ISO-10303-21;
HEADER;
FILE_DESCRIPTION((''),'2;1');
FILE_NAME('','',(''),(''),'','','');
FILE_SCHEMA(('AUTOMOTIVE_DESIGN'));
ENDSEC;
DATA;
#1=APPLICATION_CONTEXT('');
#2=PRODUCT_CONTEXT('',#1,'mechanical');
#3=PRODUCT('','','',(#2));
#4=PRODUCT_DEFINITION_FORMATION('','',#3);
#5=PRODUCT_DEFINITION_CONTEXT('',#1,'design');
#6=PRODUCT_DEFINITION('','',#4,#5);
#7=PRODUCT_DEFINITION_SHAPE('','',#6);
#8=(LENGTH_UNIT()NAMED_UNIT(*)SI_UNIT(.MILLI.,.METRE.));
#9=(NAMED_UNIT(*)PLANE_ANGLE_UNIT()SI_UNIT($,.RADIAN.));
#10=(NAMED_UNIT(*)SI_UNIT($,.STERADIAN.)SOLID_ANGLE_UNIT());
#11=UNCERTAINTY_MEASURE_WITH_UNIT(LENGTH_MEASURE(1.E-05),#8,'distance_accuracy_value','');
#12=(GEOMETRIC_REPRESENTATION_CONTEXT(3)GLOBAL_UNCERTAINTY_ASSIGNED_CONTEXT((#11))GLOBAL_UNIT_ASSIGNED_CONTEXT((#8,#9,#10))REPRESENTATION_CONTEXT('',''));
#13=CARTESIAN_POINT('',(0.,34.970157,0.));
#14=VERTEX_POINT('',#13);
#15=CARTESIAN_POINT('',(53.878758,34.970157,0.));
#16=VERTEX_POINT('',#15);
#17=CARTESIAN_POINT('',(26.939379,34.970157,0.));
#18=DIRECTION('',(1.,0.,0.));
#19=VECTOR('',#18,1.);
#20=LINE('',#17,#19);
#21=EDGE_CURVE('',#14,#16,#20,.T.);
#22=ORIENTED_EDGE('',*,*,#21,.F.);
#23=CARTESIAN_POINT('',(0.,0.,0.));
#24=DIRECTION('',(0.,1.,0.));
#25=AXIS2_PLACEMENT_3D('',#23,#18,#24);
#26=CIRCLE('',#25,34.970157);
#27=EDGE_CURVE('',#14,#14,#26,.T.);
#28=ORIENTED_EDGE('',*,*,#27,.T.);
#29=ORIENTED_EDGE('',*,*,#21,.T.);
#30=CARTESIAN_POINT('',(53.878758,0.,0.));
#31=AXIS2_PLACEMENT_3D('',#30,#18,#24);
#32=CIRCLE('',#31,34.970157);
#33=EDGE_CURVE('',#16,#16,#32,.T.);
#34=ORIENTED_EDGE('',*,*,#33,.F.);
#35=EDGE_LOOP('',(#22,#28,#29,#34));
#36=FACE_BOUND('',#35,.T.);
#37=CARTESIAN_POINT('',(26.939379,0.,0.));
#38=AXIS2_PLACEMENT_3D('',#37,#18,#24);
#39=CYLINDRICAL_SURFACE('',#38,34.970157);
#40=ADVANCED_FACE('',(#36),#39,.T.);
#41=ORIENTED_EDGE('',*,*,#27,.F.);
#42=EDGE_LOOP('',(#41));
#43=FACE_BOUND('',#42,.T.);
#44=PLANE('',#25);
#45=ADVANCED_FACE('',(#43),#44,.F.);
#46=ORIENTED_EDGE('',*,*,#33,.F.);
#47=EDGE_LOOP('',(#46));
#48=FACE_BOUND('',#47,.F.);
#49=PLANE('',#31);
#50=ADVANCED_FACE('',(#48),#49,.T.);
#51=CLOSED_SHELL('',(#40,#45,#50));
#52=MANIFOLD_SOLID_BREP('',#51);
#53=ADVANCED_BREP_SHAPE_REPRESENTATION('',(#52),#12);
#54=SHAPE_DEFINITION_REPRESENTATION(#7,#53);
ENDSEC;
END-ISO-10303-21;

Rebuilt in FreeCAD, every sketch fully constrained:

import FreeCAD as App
import Part
import Sketcher


def add_polygon(sketch, points):
    """Adds a closed chain of lines whose ends are joined by coincident constraints."""
    first, n = sketch.GeometryCount, len(points)
    for a, b in zip(points, points[1:] + points[:1]):
        sketch.addGeometry(Part.LineSegment(App.Vector(*a, 0), App.Vector(*b, 0)), False)
    for i in range(n):
        sketch.addConstraint(Sketcher.Constraint("Coincident", first + i, 2, first + (i + 1) % n, 1))

doc = App.newDocument("Part")
params = doc.addObject("Spreadsheet::Sheet", "Params")
for row, (alias, value) in enumerate([
    ("revolution_angle", "360 deg"),
    ("pad1_length", "25 mm"),
], start=1):
    params.set(f"A{row}", alias)
    params.set(f"B{row}", "=" + value)
    params.setAlias(f"B{row}", alias)

body = doc.addObject("PartDesign::Body", "Body")

sketch1 = body.newObject("Sketcher::SketchObject", "Sketch")
sketch1.AttachmentSupport = (doc.getObject("XY_Plane"), [""])
sketch1.MapMode = "FlatFace"
add_polygon(sketch1, [(0, 35), (0, 0), (54, 0), (54, 35)])
sketch1.addConstraint([
    Sketcher.Constraint("Vertical", 0),
    Sketcher.Constraint("Horizontal", 1),
    Sketcher.Constraint("Vertical", 2),
    Sketcher.Constraint("Horizontal", 3),
    Sketcher.Constraint("Coincident", 0, 2, -1, 1),
    Sketcher.Constraint("DistanceX", 1, 1, 1, 2, 53.878758),
    Sketcher.Constraint("DistanceY", 0, 2, 0, 1, 34.970157),
])
revolution = body.newObject("PartDesign::Revolution", "Revolution")
revolution.Profile = sketch1
revolution.ReferenceAxis = (sketch1, ["H_Axis"])
revolution.setExpression("Angle", "Params.revolution_angle")

sketch2 = body.newObject("Sketcher::SketchObject", "Sketch001")
sketch2.AttachmentSupport = (doc.getObject("YZ_Plane"), [""])
sketch2.MapMode = "FlatFace"
sketch2.AttachmentOffset = App.Placement(App.Vector(0, 0, 53.878758), App.Rotation())
sketch2.addGeometry(Part.Circle(App.Vector(0, 0, 0), App.Vector(0, 0, 1), 27), False)
sketch2.addConstraint([
    Sketcher.Constraint("Coincident", 0, 3, -1, 1),
    Sketcher.Constraint("Diameter", 0, 54.53433),
])
pad1 = body.newObject("PartDesign::Pad", "Pad")
pad1.Profile = sketch2
pad1.setExpression("Length", "Params.pad1_length")
pad1.Reversed = True

doc.recompute()
